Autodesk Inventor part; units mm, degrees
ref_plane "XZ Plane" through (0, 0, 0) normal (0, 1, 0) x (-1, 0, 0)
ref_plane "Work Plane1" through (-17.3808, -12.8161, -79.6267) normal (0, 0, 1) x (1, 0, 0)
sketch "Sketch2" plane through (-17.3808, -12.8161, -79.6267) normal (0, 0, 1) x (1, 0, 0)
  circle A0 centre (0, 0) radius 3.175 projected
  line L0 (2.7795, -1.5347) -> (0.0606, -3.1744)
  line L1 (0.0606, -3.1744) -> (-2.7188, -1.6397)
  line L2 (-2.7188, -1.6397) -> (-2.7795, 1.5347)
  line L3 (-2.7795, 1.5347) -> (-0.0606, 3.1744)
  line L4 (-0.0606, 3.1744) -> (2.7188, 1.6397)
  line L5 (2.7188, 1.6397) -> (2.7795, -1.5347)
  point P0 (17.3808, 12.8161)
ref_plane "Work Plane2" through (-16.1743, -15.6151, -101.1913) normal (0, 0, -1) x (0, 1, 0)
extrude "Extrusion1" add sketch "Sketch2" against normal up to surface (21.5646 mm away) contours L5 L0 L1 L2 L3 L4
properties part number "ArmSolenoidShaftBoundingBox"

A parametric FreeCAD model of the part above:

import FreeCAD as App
import Part
import Sketcher
from FreeCAD import Vector
Q = App.Units.Quantity

doc = App.newDocument("Part")
body = doc.addObject("PartDesign::Body", "Body")

sketch1 = body.newObject("Sketcher::SketchObject", "Sketch")
sketch1.AttachmentSupport = (doc.getObject("XY_Plane"), [""])
sketch1.MapMode = "FlatFace"
sketch1.AttachmentOffset = App.Placement(Vector(0, 0, -3.1349094 * 25.4), App.Rotation())
sketch1.addGeometry(Part.LineSegment(Vector(-14.6013, -14.3508, 0), Vector(-14.662, -11.1764, 0)), False)
sketch1.addGeometry(Part.LineSegment(Vector(-14.662, -11.1764, 0), Vector(-17.4414, -9.6417, 0)), False)
sketch1.addGeometry(Part.LineSegment(Vector(-17.4414, -9.6417, 0), Vector(-20.1603, -11.2814, 0)), False)
sketch1.addGeometry(Part.LineSegment(Vector(-20.1603, -11.2814, 0), Vector(-20.0996, -14.4558, 0)), False)
sketch1.addGeometry(Part.LineSegment(Vector(-20.0996, -14.4558, 0), Vector(-17.3202, -15.9905, 0)), False)
sketch1.addGeometry(Part.LineSegment(Vector(-17.3202, -15.9905, 0), Vector(-14.6013, -14.3508, 0)), False)
sketch1.addConstraint(Sketcher.Constraint("Coincident", 0, 2, 1, 1))
sketch1.addConstraint(Sketcher.Constraint("Coincident", 1, 2, 2, 1))
sketch1.addConstraint(Sketcher.Constraint("Coincident", 2, 2, 3, 1))
sketch1.addConstraint(Sketcher.Constraint("Coincident", 3, 2, 4, 1))
sketch1.addConstraint(Sketcher.Constraint("Coincident", 4, 2, 5, 1))
sketch1.addConstraint(Sketcher.Constraint("Coincident", 5, 2, 0, 1))
sketch1.addConstraint(Sketcher.Constraint("Parallel", 0, 3))
sketch1.addConstraint(Sketcher.Constraint("Parallel", 1, 4))
sketch1.addConstraint(Sketcher.Constraint("Parallel", 2, 5))
sketch1.addConstraint(Sketcher.Constraint("Equal", 0, 1))
sketch1.addConstraint(Sketcher.Constraint("Equal", 1, 2))
sketch1.addConstraint(Sketcher.Constraint("Equal", 2, 3))
sketch1.addConstraint(Sketcher.Constraint("Distance", 0, Q("0.125 in")))
sketch1.addConstraint(Sketcher.Constraint("DistanceY", 5, 2, -1, 1, Q("0.565 in")))
sketch1.addConstraint(Sketcher.Constraint("DistanceY", 1, 2, -1, 1, Q("0.3796 in")))
sketch1.addConstraint(Sketcher.Constraint("DistanceX", 4, 2, -1, 1, Q("0.6819 in")))
sketch1.addConstraint(Sketcher.Constraint("DistanceX", 2, 2, 3, 2, Q("0.0024 in")))
sketch1.addConstraint(Sketcher.Constraint("DistanceY", 3, 2, 0, 2, Q("0.1291 in")))
pad1 = body.newObject("PartDesign::Pad", "Pad")
pad1.Profile = sketch1
pad1.Length = Q("0.849 in")
pad1.Reversed = True

doc.recompute()
